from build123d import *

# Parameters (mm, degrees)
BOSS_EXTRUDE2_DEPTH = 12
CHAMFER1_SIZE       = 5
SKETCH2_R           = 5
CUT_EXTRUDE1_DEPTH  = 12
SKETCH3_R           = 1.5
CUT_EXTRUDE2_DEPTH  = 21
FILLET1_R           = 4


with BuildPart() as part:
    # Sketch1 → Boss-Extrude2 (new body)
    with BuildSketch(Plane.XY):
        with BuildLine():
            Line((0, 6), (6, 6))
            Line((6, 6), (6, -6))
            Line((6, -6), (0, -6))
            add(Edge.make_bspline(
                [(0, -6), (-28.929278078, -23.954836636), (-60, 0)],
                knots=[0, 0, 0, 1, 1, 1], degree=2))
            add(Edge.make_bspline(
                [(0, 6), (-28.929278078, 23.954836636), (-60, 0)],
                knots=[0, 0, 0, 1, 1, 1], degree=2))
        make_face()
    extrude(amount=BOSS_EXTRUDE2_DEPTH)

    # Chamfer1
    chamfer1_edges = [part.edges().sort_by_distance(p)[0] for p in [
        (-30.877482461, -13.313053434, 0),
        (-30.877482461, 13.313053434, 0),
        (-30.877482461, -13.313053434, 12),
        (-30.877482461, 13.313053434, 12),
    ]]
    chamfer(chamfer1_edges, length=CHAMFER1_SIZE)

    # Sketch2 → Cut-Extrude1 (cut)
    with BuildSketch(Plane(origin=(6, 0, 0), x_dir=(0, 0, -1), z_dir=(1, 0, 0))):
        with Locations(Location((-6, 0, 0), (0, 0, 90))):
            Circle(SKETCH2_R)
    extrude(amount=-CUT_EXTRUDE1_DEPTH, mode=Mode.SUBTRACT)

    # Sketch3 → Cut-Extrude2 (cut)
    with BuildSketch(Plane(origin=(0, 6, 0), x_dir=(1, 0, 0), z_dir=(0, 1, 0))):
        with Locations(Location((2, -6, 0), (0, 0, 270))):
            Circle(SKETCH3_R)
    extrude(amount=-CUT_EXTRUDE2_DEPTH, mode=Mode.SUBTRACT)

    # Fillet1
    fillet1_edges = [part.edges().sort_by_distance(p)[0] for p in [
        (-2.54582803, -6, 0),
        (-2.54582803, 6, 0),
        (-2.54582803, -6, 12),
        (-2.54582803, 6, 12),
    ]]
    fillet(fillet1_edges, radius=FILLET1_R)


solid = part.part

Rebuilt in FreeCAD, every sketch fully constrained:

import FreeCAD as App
import Part
import Sketcher


def edges_at(feature, points):
    """Names of the edges that pass closest to the given points."""
    edges = feature.Shape.Edges
    near = lambda p: min(range(len(edges)), key=lambda i: edges[i].distToShape(Part.Vertex(*p))[0])
    return sorted({f"Edge{near(p) + 1}" for p in points})

doc = App.newDocument("Part")
body = doc.addObject("PartDesign::Body", "Body")

# Sketch on XY plane
sketch1 = body.newObject("Sketcher::SketchObject", "Sketch")
sketch1.AttachmentSupport = (doc.getObject("XY_Plane"), [""])
sketch1.MapMode = "FlatFace"
sketch1.addGeometry([
    Part.LineSegment(App.Vector(6, 6, 0), App.Vector(0, 6, 0)),  # 0
    Part.BSplineCurve([App.Vector(0, 6, 0), App.Vector(-28.929278, 23.954837, 0), App.Vector(-60, 0, 0)], [3, 3], [0, 1], False, 2, [1, 1, 1], False),  # 1
    Part.BSplineCurve([App.Vector(0, -6, 0), App.Vector(-28.929278, -23.954837, 0), App.Vector(-60, 0, 0)], [3, 3], [0, 1], False, 2, [1, 1, 1], False),  # 2
    Part.LineSegment(App.Vector(0, -6, 0), App.Vector(6, -6, 0)),  # 3
    Part.LineSegment(App.Vector(6, -6, 0), App.Vector(6, 6, 0)),  # 4
], False)
sketch1.addConstraint([
    Sketcher.Constraint("Block", 1),
    Sketcher.Constraint("Block", 2),
    Sketcher.Constraint("Coincident", 0, 2, 1, 1),
    Sketcher.Constraint("Coincident", 2, 1, 3, 1),
    Sketcher.Constraint("Coincident", 3, 2, 4, 1),
    Sketcher.Constraint("Coincident", 4, 2, 0, 1),
    Sketcher.Constraint("Horizontal", 0),
    Sketcher.Constraint("Horizontal", 3),
    Sketcher.Constraint("Vertical", 4),
    Sketcher.Constraint("DistanceX", 0, 2, 0, 1, 6.0),
])
pad1 = body.newObject("PartDesign::Pad", "Pad")
pad1.Profile = sketch1
pad1.Length = 12
doc.recompute()

chamfer = body.newObject("PartDesign::Chamfer", "Chamfer")
chamfer.Base = (pad1, edges_at(pad1, [
    (-30.877, -13.313, 0),
    (-30.877, 13.313, 0),
    (-30.877, -13.313, 12),
    (-30.877, 13.313, 12),
]))
chamfer.Size = 5

# Sketch on YZ plane
sketch2 = body.newObject("Sketcher::SketchObject", "Sketch001")
sketch2.AttachmentSupport = (doc.getObject("YZ_Plane"), [""])
sketch2.MapMode = "FlatFace"
sketch2.AttachmentOffset = App.Placement(App.Vector(0, 0, 6), App.Rotation())
sketch2.addGeometry(Part.Circle(App.Vector(0, 6, 0), App.Vector(0, 0, 1), 5), False)
sketch2.addConstraint([
    Sketcher.Constraint("PointOnObject", 0, 3, -2),
    Sketcher.Constraint("Diameter", 0, 10.0),
    Sketcher.Constraint("DistanceY", -1, 1, 0, 3, 6.0),
])
pocket1 = body.newObject("PartDesign::Pocket", "Pocket")
pocket1.Profile = sketch2
pocket1.Length = 12

# Sketch on XZ plane
sketch3 = body.newObject("Sketcher::SketchObject", "Sketch002")
sketch3.AttachmentSupport = (doc.getObject("XZ_Plane"), [""])
sketch3.MapMode = "FlatFace"
sketch3.AttachmentOffset = App.Placement(App.Vector(0, 0, -6), App.Rotation())
sketch3.addGeometry(Part.Circle(App.Vector(2, 6, 0), App.Vector(0, 0, 1), 1.5), False)
sketch3.addConstraint([
    Sketcher.Constraint("Diameter", 0, 3.0),
    Sketcher.Constraint("DistanceX", -1, 1, 0, 3, 2.0),
    Sketcher.Constraint("DistanceY", -1, 1, 0, 3, 6.0),
])
pocket2 = body.newObject("PartDesign::Pocket", "Pocket001")
pocket2.Profile = sketch3
pocket2.Length = 21
pocket2.Reversed = True
doc.recompute()

fillet = body.newObject("PartDesign::Fillet", "Fillet")
fillet.Base = (pocket2, edges_at(pocket2, [
    (-2.546, -6, 0),
    (-2.546, 6, 0),
    (-2.546, -6, 12),
    (-2.546, 6, 12),
]))
fillet.Radius = 4

doc.recompute()
